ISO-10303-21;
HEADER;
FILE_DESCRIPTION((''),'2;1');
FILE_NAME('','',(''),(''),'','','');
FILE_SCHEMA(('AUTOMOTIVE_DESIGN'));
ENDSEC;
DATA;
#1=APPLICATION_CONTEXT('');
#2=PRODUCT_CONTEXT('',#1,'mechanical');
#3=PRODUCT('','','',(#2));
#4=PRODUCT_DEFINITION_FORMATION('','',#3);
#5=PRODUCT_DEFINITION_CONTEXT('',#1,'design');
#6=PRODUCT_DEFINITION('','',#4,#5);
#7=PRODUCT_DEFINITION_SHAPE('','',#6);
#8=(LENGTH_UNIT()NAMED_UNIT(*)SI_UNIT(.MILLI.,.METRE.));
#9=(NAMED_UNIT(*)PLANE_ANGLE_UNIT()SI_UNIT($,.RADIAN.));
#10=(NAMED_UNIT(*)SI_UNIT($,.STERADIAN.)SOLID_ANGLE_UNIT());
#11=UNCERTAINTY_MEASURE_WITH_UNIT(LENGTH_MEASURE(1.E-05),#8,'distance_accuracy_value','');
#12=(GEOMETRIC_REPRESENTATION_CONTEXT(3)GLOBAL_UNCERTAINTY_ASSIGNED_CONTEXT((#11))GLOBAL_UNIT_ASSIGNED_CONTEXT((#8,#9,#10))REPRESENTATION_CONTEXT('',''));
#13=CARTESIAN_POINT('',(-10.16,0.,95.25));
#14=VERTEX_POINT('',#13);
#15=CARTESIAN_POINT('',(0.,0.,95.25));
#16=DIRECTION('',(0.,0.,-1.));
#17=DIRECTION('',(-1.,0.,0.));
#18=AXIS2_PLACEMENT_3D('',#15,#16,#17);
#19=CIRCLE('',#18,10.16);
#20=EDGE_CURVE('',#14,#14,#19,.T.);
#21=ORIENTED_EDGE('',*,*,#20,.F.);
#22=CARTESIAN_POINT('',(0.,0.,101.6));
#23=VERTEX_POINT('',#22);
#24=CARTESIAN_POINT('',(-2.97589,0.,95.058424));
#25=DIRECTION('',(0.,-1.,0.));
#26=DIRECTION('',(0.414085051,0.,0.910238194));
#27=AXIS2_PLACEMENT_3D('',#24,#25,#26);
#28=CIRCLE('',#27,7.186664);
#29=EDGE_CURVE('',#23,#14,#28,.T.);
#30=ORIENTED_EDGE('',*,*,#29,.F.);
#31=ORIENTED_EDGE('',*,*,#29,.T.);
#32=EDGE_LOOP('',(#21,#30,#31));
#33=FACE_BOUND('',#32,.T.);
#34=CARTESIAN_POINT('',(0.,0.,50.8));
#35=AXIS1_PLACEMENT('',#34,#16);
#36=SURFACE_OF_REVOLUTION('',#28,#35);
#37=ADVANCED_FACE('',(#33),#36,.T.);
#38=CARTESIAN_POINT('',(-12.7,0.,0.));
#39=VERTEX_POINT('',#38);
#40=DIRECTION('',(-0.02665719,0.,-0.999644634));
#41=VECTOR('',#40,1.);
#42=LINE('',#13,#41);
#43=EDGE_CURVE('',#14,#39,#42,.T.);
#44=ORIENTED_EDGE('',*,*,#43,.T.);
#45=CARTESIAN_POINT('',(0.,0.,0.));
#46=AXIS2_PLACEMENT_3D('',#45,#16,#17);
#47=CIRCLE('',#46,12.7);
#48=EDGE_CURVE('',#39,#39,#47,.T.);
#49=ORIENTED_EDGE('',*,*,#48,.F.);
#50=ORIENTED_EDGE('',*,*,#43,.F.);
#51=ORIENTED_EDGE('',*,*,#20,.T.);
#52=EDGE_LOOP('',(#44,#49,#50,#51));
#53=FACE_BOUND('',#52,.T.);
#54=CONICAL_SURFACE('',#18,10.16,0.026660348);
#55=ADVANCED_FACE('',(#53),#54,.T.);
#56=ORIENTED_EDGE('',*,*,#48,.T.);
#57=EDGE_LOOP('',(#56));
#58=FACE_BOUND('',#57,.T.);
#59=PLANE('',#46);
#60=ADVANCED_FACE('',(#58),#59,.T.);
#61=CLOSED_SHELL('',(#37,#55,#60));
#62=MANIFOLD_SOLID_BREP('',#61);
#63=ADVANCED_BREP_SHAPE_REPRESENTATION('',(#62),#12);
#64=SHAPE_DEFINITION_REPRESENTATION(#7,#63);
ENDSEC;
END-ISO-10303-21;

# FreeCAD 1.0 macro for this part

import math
import FreeCAD as App
import Part
import Sketcher

V = App.Vector
Q = App.Units.Quantity

doc = App.newDocument("Part")
params = doc.addObject("Spreadsheet::Sheet", "Params")
for row, (alias, value) in enumerate([
    ("sketch1_height", "4 in"),
    ("sketch1_width", "0.5 in"),
    ("revolution_angle", "360 deg"),
], start=1):
    params.set(f"A{row}", alias)
    params.set(f"B{row}", "=" + value)
    params.setAlias(f"B{row}", alias)

body = doc.addObject("PartDesign::Body", "Body")

sketch1 = body.newObject("Sketcher::SketchObject", "Sketch")
sketch1.AttachmentSupport = (doc.getObject("XZ_Plane"), [""])
sketch1.MapMode = "FlatFace"
sketch1.addGeometry([
    Part.LineSegment(V(0, 0, 0), V(0, 102, 0)),
    Part.ArcOfCircle(Part.Circle(V(-3, 95, 0), V(0, 0, 1), 7), math.radians(66), math.radians(178)),
    Part.LineSegment(V(-10, 95, 0), V(-13, 0, 0)),
    Part.LineSegment(V(-13, 0, 0), V(0, 0, 0)),
], False)
sketch1.addConstraint([
    Sketcher.Constraint("Coincident", 0, 2, 1, 1),
    Sketcher.Constraint("Tangent", 1, 2, 2, 1),
    Sketcher.Constraint("Coincident", 2, 2, 3, 1),
    Sketcher.Constraint("Coincident", 3, 2, 0, 1),
    Sketcher.Constraint("Vertical", 0),
    Sketcher.Constraint("Horizontal", 3),
    Sketcher.Constraint("Coincident", 3, 2, -1, 1),
    Sketcher.Constraint("DistanceY", 0, 1, 0, 2, Q("4 in")),
    Sketcher.Constraint("DistanceX", 3, 1, 3, 2, Q("0.5 in")),
    Sketcher.Constraint("DistanceX", 1, 2, -1, 1, Q("0.4 in")),
    Sketcher.Constraint("DistanceY", -1, 1, 1, 2, Q("3.75 in")),
])
sketch1.setExpression("Constraints[7]", "Params.sketch1_height")
sketch1.setExpression("Constraints[8]", "Params.sketch1_width")
revolution = body.newObject("PartDesign::Revolution", "Revolution")
revolution.Profile = sketch1
revolution.ReferenceAxis = (sketch1, ["V_Axis"])
revolution.setExpression("Angle", "Params.revolution_angle")

doc.recompute()
